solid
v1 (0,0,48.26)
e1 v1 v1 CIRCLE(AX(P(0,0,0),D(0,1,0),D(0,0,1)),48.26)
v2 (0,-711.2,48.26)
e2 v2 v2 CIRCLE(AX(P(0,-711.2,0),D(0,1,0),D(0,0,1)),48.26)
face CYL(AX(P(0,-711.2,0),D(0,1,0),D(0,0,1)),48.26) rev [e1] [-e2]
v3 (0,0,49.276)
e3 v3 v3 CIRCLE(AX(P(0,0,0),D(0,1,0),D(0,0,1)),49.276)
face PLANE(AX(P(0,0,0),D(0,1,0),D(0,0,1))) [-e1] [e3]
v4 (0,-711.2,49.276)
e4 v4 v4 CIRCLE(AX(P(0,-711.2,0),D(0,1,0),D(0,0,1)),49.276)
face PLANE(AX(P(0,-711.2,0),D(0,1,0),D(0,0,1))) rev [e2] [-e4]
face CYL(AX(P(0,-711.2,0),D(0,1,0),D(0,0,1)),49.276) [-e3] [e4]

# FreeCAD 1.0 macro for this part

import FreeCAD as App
import Part
import Sketcher
Q = App.Units.Quantity

doc = App.newDocument("Part")
body = doc.addObject("PartDesign::Body", "Body")

sketch1 = body.newObject("Sketcher::SketchObject", "Sketch")
sketch1.AttachmentSupport = (doc.getObject("XZ_Plane"), [""])
sketch1.MapMode = "FlatFace"
sketch1.addGeometry([
    Part.Circle(App.Vector(0, 0, 0), App.Vector(0, 0, 1), 49),
    Part.Circle(App.Vector(0, 0, 0), App.Vector(0, 0, 1), 48),
], False)
sketch1.addConstraint([
    Sketcher.Constraint("Coincident", 0, 3, -1, 1),
    Sketcher.Constraint("Coincident", 1, 3, -1, 1),
    Sketcher.Constraint("Diameter", 1, Q("3.8 in")),
    Sketcher.Constraint("Diameter", 0, Q("3.88 in")),
])
pad1 = body.newObject("PartDesign::Pad", "Pad")
pad1.Profile = sketch1
pad1.Length = Q("28 in")

doc.recompute()
